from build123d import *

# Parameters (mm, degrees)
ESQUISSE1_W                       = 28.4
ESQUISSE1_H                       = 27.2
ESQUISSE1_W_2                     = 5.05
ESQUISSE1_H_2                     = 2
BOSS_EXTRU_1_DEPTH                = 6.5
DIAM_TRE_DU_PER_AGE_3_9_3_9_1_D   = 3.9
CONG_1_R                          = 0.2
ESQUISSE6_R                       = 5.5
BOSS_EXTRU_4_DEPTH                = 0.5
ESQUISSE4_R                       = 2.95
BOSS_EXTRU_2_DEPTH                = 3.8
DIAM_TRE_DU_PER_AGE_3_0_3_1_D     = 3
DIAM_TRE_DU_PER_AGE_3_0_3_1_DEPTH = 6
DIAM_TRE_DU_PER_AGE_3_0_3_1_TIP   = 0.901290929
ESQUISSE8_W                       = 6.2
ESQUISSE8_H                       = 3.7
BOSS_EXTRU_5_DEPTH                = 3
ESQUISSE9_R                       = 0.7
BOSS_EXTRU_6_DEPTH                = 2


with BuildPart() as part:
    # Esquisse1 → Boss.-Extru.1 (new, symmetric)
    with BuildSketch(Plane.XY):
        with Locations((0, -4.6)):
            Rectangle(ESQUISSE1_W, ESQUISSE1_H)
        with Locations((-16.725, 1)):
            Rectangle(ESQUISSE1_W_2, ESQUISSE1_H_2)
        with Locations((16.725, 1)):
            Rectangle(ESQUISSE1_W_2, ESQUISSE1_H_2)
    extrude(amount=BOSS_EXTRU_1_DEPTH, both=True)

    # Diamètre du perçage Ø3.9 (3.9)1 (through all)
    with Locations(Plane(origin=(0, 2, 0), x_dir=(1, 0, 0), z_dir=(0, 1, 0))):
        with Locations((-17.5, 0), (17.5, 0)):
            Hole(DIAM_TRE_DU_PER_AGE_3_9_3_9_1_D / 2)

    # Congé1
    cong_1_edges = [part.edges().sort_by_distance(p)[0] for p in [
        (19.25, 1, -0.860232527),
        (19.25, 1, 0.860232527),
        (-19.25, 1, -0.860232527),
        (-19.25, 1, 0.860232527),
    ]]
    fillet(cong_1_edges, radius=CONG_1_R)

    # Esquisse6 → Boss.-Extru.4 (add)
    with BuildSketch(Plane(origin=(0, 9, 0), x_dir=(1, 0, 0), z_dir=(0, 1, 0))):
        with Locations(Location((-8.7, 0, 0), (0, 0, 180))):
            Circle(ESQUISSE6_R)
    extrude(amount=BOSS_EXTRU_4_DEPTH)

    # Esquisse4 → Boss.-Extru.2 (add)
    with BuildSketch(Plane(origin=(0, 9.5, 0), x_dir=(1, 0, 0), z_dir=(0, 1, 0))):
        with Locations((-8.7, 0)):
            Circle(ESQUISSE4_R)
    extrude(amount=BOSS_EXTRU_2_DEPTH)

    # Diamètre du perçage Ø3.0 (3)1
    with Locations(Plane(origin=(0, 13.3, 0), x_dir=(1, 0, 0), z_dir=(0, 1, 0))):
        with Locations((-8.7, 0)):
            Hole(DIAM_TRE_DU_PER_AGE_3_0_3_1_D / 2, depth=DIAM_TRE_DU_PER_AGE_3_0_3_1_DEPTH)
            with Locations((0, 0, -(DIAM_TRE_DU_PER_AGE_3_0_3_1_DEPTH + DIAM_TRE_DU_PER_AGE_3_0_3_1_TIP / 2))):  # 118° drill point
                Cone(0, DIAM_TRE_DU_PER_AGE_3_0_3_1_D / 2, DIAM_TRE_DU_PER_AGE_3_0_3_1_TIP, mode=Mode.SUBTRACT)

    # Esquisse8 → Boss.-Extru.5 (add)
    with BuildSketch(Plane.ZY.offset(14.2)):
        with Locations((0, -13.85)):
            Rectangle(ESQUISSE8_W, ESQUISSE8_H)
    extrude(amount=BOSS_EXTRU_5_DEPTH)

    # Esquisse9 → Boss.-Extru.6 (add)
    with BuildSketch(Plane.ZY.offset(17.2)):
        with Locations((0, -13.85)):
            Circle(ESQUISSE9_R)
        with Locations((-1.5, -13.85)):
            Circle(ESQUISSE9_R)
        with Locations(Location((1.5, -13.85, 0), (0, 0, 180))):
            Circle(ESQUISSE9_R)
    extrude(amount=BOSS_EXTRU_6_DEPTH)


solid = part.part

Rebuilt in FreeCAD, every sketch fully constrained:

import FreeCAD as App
import Part
import Sketcher

V = App.Vector
Q = App.Units.Quantity


def edges_at(feature, points):
    """Names of the edges that pass closest to the given points."""
    edges = feature.Shape.Edges
    near = lambda p: min(range(len(edges)), key=lambda i: edges[i].distToShape(Part.Vertex(*p))[0])
    return sorted({f"Edge{near(p) + 1}" for p in points})


def add_polygon(sketch, points):
    """Adds a closed chain of lines whose ends are joined by coincident constraints."""
    first, n = sketch.GeometryCount, len(points)
    for a, b in zip(points, points[1:] + points[:1]):
        sketch.addGeometry(Part.LineSegment(App.Vector(*a, 0), App.Vector(*b, 0)), False)
    for i in range(n):
        sketch.addConstraint(Sketcher.Constraint("Coincident", first + i, 2, first + (i + 1) % n, 1))

doc = App.newDocument("Part")
body = doc.addObject("PartDesign::Body", "Body")

# Sketch on XY plane
sketch1 = body.newObject("Sketcher::SketchObject", "Sketch")
sketch1.AttachmentSupport = (doc.getObject("XY_Plane"), [""])
sketch1.MapMode = "FlatFace"
add_polygon(sketch1, [(-14.2, 0), (-14.2, -18.2), (14.2, -18.2), (14.2, 0), (19.2, 0), (19.2, 2), (14.2, 2), (14.2, 9), (-14.2, 9), (-14.2, 2), (-19.2, 2), (-19.2, 0)])  # lines 0-11
sketch1.addConstraint(Sketcher.Constraint("Vertical", 0))
sketch1.addConstraint(Sketcher.Constraint("Horizontal", 1))
sketch1.addConstraint(Sketcher.Constraint("Vertical", 2))
sketch1.addConstraint(Sketcher.Constraint("Horizontal", 3))
sketch1.addConstraint(Sketcher.Constraint("Vertical", 4))
sketch1.addConstraint(Sketcher.Constraint("Horizontal", 5))
sketch1.addConstraint(Sketcher.Constraint("Vertical", 6))
sketch1.addConstraint(Sketcher.Constraint("Horizontal", 7))
sketch1.addConstraint(Sketcher.Constraint("Vertical", 8))
sketch1.addConstraint(Sketcher.Constraint("Horizontal", 9))
sketch1.addConstraint(Sketcher.Constraint("Vertical", 10))
sketch1.addConstraint(Sketcher.Constraint("Horizontal", 11))
sketch1.addConstraint(Sketcher.Constraint("Symmetric", 3, 2, 10, 2, -1, 1))
sketch1.addConstraint(Sketcher.Constraint("Symmetric", 5, 2, 8, 2, -2))
sketch1.addConstraint(Sketcher.Constraint("Symmetric", 2, 2, 11, 2, -2))
sketch1.addConstraint(Sketcher.Constraint("Vertical", 2, 2, 5, 2))
sketch1.addConstraint(Sketcher.Constraint("DistanceY", 4, 1, 4, 2, Q("2 mm")))
sketch1.addConstraint(Sketcher.Constraint("DistanceY", 6, 1, 6, 2, Q("7 mm")))
sketch1.addConstraint(Sketcher.Constraint("DistanceX", 1, 1, 1, 2, Q("28.4 mm")))
sketch1.addConstraint(Sketcher.Constraint("DistanceY", 0, 2, 0, 1, Q("18.2 mm")))
sketch1.addConstraint(Sketcher.Constraint("DistanceX", 3, 1, 3, 2, Q("5.05 mm")))
pad1 = body.newObject("PartDesign::Pad", "Pad")
pad1.Profile = sketch1
pad1.Length = 13
pad1.Midplane = True

# Sketch on XZ plane
sketch2 = body.newObject("Sketcher::SketchObject", "Sketch001")
sketch2.AttachmentSupport = (doc.getObject("XZ_Plane"), [""])
sketch2.MapMode = "FlatFace"
sketch2.AttachmentOffset = App.Placement(V(0, 0, -2), App.Rotation())
sketch2.addGeometry(Part.Circle(V(-17.5, 0, 0), V(0, 0, 1), 1.9), False)
sketch2.addGeometry(Part.Circle(V(17.5, 0, 0), V(0, 0, 1), 1.9), False)
sketch2.addConstraint(Sketcher.Constraint("Equal", 0, 1))
sketch2.addConstraint(Sketcher.Constraint("Symmetric", 0, 3, 1, 3, -1, 1))
sketch2.addConstraint(Sketcher.Constraint("PointOnObject", 0, 3, -1))
sketch2.addConstraint(Sketcher.Constraint("Diameter", 0, Q("3.9 mm")))
sketch2.addConstraint(Sketcher.Constraint("DistanceX", 0, 3, 1, 3, Q("35 mm")))
doc.recompute()
hole = body.newObject("PartDesign::Hole", "Hole")
hole.Profile = sketch2
hole.ThreadType = "None"
hole.Diameter = 3.9
hole.DepthType = "ThroughAll"
hole.Reversed = True
doc.recompute()

fillet = body.newObject("PartDesign::Fillet", "Fillet")
fillet.Base = (hole, edges_at(hole, [
    (19.25, 1, -0.86),
    (19.25, 1, 0.86),
    (-19.25, 1, -0.86),
    (-19.25, 1, 0.86),
]))
fillet.Radius = 0.2

# Sketch on XZ plane
sketch3 = body.newObject("Sketcher::SketchObject", "Sketch002")
sketch3.AttachmentSupport = (doc.getObject("XZ_Plane"), [""])
sketch3.MapMode = "FlatFace"
sketch3.AttachmentOffset = App.Placement(V(0, 0, -9), App.Rotation())
sketch3.addGeometry(Part.Circle(V(-9, 0, 0), V(0, 0, 1), 6), False)
sketch3.addConstraint(Sketcher.Constraint("PointOnObject", 0, 3, -1))
sketch3.addConstraint(Sketcher.Constraint("Diameter", 0, Q("11 mm")))
sketch3.addConstraint(Sketcher.Constraint("DistanceX", 0, 3, -1, 1, Q("8.7 mm")))
pad2 = body.newObject("PartDesign::Pad", "Pad001")
pad2.Profile = sketch3
pad2.Length = 0.5
pad2.Reversed = True

# Sketch on XZ plane
sketch4 = body.newObject("Sketcher::SketchObject", "Sketch003")
sketch4.AttachmentSupport = (doc.getObject("XZ_Plane"), [""])
sketch4.MapMode = "FlatFace"
sketch4.AttachmentOffset = App.Placement(V(0, 0, -9.5), App.Rotation())
sketch4.addGeometry(Part.Circle(V(-8.7, 0, 0), V(0, 0, 1), 3), False)
sketch4.addConstraint(Sketcher.Constraint("PointOnObject", 0, 3, -1))
sketch4.addConstraint(Sketcher.Constraint("Diameter", 0, Q("5.9 mm")))
sketch4.addConstraint(Sketcher.Constraint("DistanceX", 0, 3, -1, 1, Q("8.7 mm")))
pad3 = body.newObject("PartDesign::Pad", "Pad002")
pad3.Profile = sketch4
pad3.Length = 3.8
pad3.Reversed = True

# Sketch on XZ plane
sketch5 = body.newObject("Sketcher::SketchObject", "Sketch004")
sketch5.AttachmentSupport = (doc.getObject("XZ_Plane"), [""])
sketch5.MapMode = "FlatFace"
sketch5.AttachmentOffset = App.Placement(V(0, 0, -13.3), App.Rotation())
sketch5.addGeometry(Part.Circle(V(-8.7, 0, 0), V(0, 0, 1), 1.5), False)
sketch5.addConstraint(Sketcher.Constraint("PointOnObject", 0, 3, -1))
sketch5.addConstraint(Sketcher.Constraint("Diameter", 0, Q("3 mm")))
sketch5.addConstraint(Sketcher.Constraint("DistanceX", 0, 3, -1, 1, Q("8.7 mm")))
doc.recompute()
hole2 = body.newObject("PartDesign::Hole", "Hole001")
hole2.Profile = sketch5
hole2.ThreadType = "None"
hole2.Diameter = 3
hole2.DepthType = "Dimension"
hole2.Depth = 6
hole2.DrillPoint = "Angled"
hole2.DrillPointAngle = 118
hole2.Reversed = True

# Sketch on YZ plane
sketch6 = body.newObject("Sketcher::SketchObject", "Sketch005")
sketch6.AttachmentSupport = (doc.getObject("YZ_Plane"), [""])
sketch6.MapMode = "FlatFace"
sketch6.AttachmentOffset = App.Placement(V(0, 0, -14.2), App.Rotation())
add_polygon(sketch6, [(-12, -3.1), (-15.7, -3.1), (-15.7, 3.1), (-12, 3.1)])  # lines 0-3
sketch6.addConstraint(Sketcher.Constraint("Horizontal", 0))
sketch6.addConstraint(Sketcher.Constraint("Vertical", 1))
sketch6.addConstraint(Sketcher.Constraint("Horizontal", 2))
sketch6.addConstraint(Sketcher.Constraint("Vertical", 3))
sketch6.addConstraint(Sketcher.Constraint("DistanceX", 0, 2, 0, 1, Q("3.7 mm")))
sketch6.addConstraint(Sketcher.Constraint("DistanceY", 1, 1, 1, 2, Q("6.2 mm")))
sketch6.addConstraint(Sketcher.Constraint("DistanceX", 2, 2, -1, 1, Q("12 mm")))
sketch6.addConstraint(Sketcher.Constraint("DistanceY", 0, 2, -1, 1, Q("3.1 mm")))
pad4 = body.newObject("PartDesign::Pad", "Pad003")
pad4.Profile = sketch6
pad4.Length = 3
pad4.Reversed = True

# Sketch on YZ plane
sketch7 = body.newObject("Sketcher::SketchObject", "Sketch006")
sketch7.AttachmentSupport = (doc.getObject("YZ_Plane"), [""])
sketch7.MapMode = "FlatFace"
sketch7.AttachmentOffset = App.Placement(V(0, 0, -17.2), App.Rotation())
sketch7.addGeometry(Part.Circle(V(-13.8, 0, 0), V(0, 0, 1), 0.7), False)
sketch7.addGeometry(Part.Circle(V(-13.8, -1.5, 0), V(0, 0, 1), 0.7), False)
sketch7.addGeometry(Part.Circle(V(-13.8, 1.5, 0), V(0, 0, 1), 0.7), False)
sketch7.addConstraint(Sketcher.Constraint("Equal", 0, 1))
sketch7.addConstraint(Sketcher.Constraint("Equal", 1, 2))
sketch7.addConstraint(Sketcher.Constraint("Symmetric", 1, 3, 2, 3, -1))
sketch7.addConstraint(Sketcher.Constraint("PointOnObject", 0, 3, -1))
sketch7.addConstraint(Sketcher.Constraint("Vertical", 0, 3, 1, 3))
sketch7.addConstraint(Sketcher.Constraint("Diameter", 0, Q("1.4 mm")))
sketch7.addConstraint(Sketcher.Constraint("DistanceY", 1, 3, 2, 3, Q("3 mm")))
sketch7.addConstraint(Sketcher.Constraint("DistanceX", 0, 3, -1, 1, Q("13.85 mm")))
pad5 = body.newObject("PartDesign::Pad", "Pad004")
pad5.Profile = sketch7
pad5.Length = 2
pad5.Reversed = True

doc.recompute()
